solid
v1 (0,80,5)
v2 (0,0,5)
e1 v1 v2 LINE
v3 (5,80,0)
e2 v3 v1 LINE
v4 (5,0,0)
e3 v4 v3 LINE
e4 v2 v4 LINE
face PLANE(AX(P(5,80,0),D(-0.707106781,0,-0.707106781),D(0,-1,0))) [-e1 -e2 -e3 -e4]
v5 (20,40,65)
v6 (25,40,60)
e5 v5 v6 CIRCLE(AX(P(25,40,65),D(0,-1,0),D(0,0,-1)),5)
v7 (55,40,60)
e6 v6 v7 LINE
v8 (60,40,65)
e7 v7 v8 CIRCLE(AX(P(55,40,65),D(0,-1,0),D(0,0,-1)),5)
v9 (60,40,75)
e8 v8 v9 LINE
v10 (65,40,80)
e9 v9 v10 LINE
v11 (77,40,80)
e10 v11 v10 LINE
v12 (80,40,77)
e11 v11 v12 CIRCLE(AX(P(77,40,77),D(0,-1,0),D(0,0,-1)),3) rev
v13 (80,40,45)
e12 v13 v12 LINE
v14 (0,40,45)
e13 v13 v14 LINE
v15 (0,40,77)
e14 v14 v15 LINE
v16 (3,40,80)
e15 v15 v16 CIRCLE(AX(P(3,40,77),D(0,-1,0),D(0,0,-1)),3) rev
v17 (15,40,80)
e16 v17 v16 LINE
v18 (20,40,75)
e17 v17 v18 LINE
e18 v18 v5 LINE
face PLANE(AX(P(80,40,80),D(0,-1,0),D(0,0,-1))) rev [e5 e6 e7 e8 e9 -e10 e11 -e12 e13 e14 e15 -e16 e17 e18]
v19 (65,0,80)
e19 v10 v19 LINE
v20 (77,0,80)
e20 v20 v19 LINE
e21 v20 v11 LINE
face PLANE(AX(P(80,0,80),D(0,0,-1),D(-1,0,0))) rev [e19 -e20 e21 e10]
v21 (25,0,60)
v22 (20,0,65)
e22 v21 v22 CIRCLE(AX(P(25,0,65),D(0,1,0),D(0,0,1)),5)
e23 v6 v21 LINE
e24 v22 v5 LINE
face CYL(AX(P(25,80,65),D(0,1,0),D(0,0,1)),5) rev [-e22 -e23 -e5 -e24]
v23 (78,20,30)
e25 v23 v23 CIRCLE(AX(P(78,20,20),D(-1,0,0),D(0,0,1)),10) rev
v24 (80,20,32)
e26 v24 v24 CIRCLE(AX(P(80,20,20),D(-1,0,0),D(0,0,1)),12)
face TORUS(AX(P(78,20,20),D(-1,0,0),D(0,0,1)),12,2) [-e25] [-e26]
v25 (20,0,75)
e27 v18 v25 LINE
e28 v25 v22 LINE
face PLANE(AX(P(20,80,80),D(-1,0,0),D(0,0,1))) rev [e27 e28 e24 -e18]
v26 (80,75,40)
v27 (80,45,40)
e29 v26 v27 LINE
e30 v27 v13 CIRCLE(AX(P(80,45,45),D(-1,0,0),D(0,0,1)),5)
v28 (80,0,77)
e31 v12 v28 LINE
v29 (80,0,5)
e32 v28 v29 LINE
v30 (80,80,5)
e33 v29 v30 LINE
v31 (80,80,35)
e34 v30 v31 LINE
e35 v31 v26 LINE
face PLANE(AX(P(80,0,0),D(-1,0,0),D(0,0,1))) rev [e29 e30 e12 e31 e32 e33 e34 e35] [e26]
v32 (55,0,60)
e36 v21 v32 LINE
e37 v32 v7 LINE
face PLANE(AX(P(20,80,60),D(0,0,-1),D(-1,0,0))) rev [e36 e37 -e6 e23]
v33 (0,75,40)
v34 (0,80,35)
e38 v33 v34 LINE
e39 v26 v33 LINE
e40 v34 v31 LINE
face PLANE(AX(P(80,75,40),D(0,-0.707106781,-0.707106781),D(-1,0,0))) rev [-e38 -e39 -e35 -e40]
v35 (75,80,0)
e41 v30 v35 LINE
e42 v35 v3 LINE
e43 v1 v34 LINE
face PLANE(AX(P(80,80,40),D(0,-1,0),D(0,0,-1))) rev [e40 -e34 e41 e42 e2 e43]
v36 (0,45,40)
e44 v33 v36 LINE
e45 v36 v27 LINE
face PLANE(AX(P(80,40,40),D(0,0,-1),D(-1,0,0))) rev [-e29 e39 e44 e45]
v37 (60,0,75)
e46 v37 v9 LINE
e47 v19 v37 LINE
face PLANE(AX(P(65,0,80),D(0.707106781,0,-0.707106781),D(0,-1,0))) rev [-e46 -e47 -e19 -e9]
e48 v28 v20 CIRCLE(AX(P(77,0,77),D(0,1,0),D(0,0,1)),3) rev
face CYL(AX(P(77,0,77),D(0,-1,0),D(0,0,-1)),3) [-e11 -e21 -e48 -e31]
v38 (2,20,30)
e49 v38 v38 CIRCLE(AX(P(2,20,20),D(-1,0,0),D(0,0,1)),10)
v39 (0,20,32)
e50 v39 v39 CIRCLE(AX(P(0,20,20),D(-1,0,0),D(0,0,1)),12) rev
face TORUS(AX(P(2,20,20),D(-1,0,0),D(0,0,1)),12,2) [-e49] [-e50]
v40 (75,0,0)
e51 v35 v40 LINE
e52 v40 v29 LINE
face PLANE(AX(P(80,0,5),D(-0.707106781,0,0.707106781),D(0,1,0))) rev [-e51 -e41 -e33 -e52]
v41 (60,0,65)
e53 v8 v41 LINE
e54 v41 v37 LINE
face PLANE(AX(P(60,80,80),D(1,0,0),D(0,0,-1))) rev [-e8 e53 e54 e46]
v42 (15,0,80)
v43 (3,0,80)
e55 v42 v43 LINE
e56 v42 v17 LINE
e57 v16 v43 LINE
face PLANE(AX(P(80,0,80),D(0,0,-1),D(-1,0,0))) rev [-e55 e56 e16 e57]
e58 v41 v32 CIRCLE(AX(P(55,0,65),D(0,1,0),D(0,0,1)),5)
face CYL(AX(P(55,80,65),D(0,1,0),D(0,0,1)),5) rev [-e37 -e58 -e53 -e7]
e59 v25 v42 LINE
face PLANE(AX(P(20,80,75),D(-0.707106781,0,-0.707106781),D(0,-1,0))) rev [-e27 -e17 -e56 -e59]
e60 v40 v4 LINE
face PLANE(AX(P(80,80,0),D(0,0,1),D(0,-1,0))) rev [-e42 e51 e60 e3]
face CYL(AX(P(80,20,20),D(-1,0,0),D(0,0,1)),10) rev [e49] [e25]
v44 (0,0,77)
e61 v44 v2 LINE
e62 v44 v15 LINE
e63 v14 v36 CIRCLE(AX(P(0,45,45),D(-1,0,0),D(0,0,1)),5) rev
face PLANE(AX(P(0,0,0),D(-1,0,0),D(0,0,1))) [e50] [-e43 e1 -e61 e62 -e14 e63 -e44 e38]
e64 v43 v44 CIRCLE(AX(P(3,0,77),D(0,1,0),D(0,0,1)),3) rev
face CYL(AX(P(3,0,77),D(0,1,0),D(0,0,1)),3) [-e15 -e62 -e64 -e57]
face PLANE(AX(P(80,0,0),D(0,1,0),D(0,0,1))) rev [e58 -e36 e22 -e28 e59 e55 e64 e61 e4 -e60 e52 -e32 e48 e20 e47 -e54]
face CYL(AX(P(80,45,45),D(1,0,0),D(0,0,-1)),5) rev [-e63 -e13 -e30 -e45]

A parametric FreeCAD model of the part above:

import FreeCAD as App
import Part
import Sketcher
from FreeCAD import Vector
Q = App.Units.Quantity


def edges_at(feature, points):
    """Names of the edges that pass closest to the given points."""
    edges = feature.Shape.Edges
    near = lambda p: min(range(len(edges)), key=lambda i: edges[i].distToShape(Part.Vertex(*p))[0])
    return sorted({f"Edge{near(p) + 1}" for p in points})


def add_polygon(sketch, points):
    """Adds a closed chain of lines whose ends are joined by coincident constraints."""
    first, n = sketch.GeometryCount, len(points)
    for a, b in zip(points, points[1:] + points[:1]):
        sketch.addGeometry(Part.LineSegment(App.Vector(*a, 0), App.Vector(*b, 0)), False)
    for i in range(n):
        sketch.addConstraint(Sketcher.Constraint("Coincident", first + i, 2, first + (i + 1) % n, 1))

doc = App.newDocument("Part")
body = doc.addObject("PartDesign::Body", "Body")

# Sketch on YZ plane
sketch1 = doc.addObject("Sketcher::SketchObject", "Sketch")
body.addObject(sketch1)
sketch1.AttachmentSupport = (doc.YZ_Plane, [""])
sketch1.MapMode = "FlatFace"
add_polygon(sketch1, [(0, 80), (0, 0), (80, 0), (80, 40), (40, 40), (40, 80)])  # lines 0-5
sketch1.addGeometry(Part.Circle(Vector(20, 20, 0), Vector(0, 0, 1), 10), False)  # 6
sketch1.addConstraint(Sketcher.Constraint("Vertical", 0))
sketch1.addConstraint(Sketcher.Constraint("Horizontal", 1))
sketch1.addConstraint(Sketcher.Constraint("Vertical", 2))
sketch1.addConstraint(Sketcher.Constraint("Horizontal", 3))
sketch1.addConstraint(Sketcher.Constraint("Vertical", 4))
sketch1.addConstraint(Sketcher.Constraint("Horizontal", 5))
sketch1.addConstraint(Sketcher.Constraint("Coincident", 0, 2, -1, 1))
sketch1.addConstraint(Sketcher.Constraint("Equal", 3, 5))
sketch1.addConstraint(Sketcher.Constraint("Equal", 1, 0))
sketch1.addConstraint(Sketcher.Constraint("Equal", 5, 2))
sketch1.addConstraint(Sketcher.Constraint("Diameter", 6, Q("20 mm")))
sketch1.addConstraint(Sketcher.Constraint("DistanceX", 1, 1, 1, 2, Q("80 mm")))
sketch1.addConstraint(Sketcher.Constraint("DistanceX", -1, 1, 6, 3, Q("20 mm")))
sketch1.addConstraint(Sketcher.Constraint("DistanceY", -1, 1, 6, 3, Q("20 mm")))
pad1 = doc.addObject("PartDesign::Pad", "Pad")
body.addObject(pad1)
pad1.Profile = sketch1
pad1.Length = 80

# Sketch on XZ plane
sketch2 = doc.addObject("Sketcher::SketchObject", "Sketch001")
body.addObject(sketch2)
sketch2.AttachmentSupport = (doc.XZ_Plane, [""])
sketch2.MapMode = "FlatFace"
add_polygon(sketch2, [(20, 80), (20, 60), (60, 60), (60, 80)])  # lines 0-3
sketch2.addConstraint(Sketcher.Constraint("Vertical", 0))
sketch2.addConstraint(Sketcher.Constraint("Horizontal", 1))
sketch2.addConstraint(Sketcher.Constraint("Vertical", 2))
sketch2.addConstraint(Sketcher.Constraint("Horizontal", 3))
sketch2.addConstraint(Sketcher.Constraint("DistanceX", 1, 1, 1, 2, Q("40 mm")))
sketch2.addConstraint(Sketcher.Constraint("DistanceY", 0, 2, 0, 1, Q("20 mm")))
sketch2.addConstraint(Sketcher.Constraint("DistanceX", -1, 1, 0, 2, Q("20 mm")))
sketch2.addConstraint(Sketcher.Constraint("DistanceY", -1, 1, 0, 2, Q("60 mm")))
pocket1 = doc.addObject("PartDesign::Pocket", "Pocket")
body.addObject(pocket1)
pocket1.Profile = sketch2
pocket1.Type = "ThroughAll"
doc.recompute()

fillet = doc.addObject("PartDesign::Fillet", "Fillet")
body.addObject(fillet)
fillet.Base = (pocket1, edges_at(pocket1, [(80, 20, 80), (0, 20, 80)]))
fillet.Radius = 3
doc.recompute()

chamfer = doc.addObject("PartDesign::Chamfer", "Chamfer")
body.addObject(chamfer)
chamfer.Base = (fillet, edges_at(fillet, [(20, 20, 80), (60, 20, 80)]))
chamfer.Size = 5
doc.recompute()

fillet2 = doc.addObject("PartDesign::Fillet", "Fillet001")
body.addObject(fillet2)
fillet2.Base = (chamfer, edges_at(chamfer, [(20, 20, 60), (60, 20, 60)]))
fillet2.Radius = 5
doc.recompute()

fillet3 = doc.addObject("PartDesign::Fillet", "Fillet002")
body.addObject(fillet3)
fillet3.Base = (fillet2, edges_at(fillet2, [(40, 40, 40)]))
fillet3.Radius = 5
doc.recompute()

chamfer2 = doc.addObject("PartDesign::Chamfer", "Chamfer001")
body.addObject(chamfer2)
chamfer2.Base = (fillet3, edges_at(fillet3, [(40, 80, 40)]))
chamfer2.Size = 5
doc.recompute()

fillet4 = doc.addObject("PartDesign::Fillet", "Fillet003")
body.addObject(fillet4)
fillet4.Base = (chamfer2, edges_at(chamfer2, [(0, 20, 30)]))
fillet4.Radius = 2
doc.recompute()

fillet5 = doc.addObject("PartDesign::Fillet", "Fillet004")
body.addObject(fillet5)
fillet5.Base = (fillet4, edges_at(fillet4, [(80, 20, 30)]))
fillet5.Radius = 2
doc.recompute()

chamfer3 = doc.addObject("PartDesign::Chamfer", "Chamfer002")
body.addObject(chamfer3)
chamfer3.Base = (fillet5, edges_at(fillet5, [(80, 40, 0)]))
chamfer3.Size = 5
doc.recompute()

chamfer4 = doc.addObject("PartDesign::Chamfer", "Chamfer003")
body.addObject(chamfer4)
chamfer4.Base = (chamfer3, edges_at(chamfer3, [(0, 40, 0)]))
chamfer4.Size = 5

doc.recompute()
